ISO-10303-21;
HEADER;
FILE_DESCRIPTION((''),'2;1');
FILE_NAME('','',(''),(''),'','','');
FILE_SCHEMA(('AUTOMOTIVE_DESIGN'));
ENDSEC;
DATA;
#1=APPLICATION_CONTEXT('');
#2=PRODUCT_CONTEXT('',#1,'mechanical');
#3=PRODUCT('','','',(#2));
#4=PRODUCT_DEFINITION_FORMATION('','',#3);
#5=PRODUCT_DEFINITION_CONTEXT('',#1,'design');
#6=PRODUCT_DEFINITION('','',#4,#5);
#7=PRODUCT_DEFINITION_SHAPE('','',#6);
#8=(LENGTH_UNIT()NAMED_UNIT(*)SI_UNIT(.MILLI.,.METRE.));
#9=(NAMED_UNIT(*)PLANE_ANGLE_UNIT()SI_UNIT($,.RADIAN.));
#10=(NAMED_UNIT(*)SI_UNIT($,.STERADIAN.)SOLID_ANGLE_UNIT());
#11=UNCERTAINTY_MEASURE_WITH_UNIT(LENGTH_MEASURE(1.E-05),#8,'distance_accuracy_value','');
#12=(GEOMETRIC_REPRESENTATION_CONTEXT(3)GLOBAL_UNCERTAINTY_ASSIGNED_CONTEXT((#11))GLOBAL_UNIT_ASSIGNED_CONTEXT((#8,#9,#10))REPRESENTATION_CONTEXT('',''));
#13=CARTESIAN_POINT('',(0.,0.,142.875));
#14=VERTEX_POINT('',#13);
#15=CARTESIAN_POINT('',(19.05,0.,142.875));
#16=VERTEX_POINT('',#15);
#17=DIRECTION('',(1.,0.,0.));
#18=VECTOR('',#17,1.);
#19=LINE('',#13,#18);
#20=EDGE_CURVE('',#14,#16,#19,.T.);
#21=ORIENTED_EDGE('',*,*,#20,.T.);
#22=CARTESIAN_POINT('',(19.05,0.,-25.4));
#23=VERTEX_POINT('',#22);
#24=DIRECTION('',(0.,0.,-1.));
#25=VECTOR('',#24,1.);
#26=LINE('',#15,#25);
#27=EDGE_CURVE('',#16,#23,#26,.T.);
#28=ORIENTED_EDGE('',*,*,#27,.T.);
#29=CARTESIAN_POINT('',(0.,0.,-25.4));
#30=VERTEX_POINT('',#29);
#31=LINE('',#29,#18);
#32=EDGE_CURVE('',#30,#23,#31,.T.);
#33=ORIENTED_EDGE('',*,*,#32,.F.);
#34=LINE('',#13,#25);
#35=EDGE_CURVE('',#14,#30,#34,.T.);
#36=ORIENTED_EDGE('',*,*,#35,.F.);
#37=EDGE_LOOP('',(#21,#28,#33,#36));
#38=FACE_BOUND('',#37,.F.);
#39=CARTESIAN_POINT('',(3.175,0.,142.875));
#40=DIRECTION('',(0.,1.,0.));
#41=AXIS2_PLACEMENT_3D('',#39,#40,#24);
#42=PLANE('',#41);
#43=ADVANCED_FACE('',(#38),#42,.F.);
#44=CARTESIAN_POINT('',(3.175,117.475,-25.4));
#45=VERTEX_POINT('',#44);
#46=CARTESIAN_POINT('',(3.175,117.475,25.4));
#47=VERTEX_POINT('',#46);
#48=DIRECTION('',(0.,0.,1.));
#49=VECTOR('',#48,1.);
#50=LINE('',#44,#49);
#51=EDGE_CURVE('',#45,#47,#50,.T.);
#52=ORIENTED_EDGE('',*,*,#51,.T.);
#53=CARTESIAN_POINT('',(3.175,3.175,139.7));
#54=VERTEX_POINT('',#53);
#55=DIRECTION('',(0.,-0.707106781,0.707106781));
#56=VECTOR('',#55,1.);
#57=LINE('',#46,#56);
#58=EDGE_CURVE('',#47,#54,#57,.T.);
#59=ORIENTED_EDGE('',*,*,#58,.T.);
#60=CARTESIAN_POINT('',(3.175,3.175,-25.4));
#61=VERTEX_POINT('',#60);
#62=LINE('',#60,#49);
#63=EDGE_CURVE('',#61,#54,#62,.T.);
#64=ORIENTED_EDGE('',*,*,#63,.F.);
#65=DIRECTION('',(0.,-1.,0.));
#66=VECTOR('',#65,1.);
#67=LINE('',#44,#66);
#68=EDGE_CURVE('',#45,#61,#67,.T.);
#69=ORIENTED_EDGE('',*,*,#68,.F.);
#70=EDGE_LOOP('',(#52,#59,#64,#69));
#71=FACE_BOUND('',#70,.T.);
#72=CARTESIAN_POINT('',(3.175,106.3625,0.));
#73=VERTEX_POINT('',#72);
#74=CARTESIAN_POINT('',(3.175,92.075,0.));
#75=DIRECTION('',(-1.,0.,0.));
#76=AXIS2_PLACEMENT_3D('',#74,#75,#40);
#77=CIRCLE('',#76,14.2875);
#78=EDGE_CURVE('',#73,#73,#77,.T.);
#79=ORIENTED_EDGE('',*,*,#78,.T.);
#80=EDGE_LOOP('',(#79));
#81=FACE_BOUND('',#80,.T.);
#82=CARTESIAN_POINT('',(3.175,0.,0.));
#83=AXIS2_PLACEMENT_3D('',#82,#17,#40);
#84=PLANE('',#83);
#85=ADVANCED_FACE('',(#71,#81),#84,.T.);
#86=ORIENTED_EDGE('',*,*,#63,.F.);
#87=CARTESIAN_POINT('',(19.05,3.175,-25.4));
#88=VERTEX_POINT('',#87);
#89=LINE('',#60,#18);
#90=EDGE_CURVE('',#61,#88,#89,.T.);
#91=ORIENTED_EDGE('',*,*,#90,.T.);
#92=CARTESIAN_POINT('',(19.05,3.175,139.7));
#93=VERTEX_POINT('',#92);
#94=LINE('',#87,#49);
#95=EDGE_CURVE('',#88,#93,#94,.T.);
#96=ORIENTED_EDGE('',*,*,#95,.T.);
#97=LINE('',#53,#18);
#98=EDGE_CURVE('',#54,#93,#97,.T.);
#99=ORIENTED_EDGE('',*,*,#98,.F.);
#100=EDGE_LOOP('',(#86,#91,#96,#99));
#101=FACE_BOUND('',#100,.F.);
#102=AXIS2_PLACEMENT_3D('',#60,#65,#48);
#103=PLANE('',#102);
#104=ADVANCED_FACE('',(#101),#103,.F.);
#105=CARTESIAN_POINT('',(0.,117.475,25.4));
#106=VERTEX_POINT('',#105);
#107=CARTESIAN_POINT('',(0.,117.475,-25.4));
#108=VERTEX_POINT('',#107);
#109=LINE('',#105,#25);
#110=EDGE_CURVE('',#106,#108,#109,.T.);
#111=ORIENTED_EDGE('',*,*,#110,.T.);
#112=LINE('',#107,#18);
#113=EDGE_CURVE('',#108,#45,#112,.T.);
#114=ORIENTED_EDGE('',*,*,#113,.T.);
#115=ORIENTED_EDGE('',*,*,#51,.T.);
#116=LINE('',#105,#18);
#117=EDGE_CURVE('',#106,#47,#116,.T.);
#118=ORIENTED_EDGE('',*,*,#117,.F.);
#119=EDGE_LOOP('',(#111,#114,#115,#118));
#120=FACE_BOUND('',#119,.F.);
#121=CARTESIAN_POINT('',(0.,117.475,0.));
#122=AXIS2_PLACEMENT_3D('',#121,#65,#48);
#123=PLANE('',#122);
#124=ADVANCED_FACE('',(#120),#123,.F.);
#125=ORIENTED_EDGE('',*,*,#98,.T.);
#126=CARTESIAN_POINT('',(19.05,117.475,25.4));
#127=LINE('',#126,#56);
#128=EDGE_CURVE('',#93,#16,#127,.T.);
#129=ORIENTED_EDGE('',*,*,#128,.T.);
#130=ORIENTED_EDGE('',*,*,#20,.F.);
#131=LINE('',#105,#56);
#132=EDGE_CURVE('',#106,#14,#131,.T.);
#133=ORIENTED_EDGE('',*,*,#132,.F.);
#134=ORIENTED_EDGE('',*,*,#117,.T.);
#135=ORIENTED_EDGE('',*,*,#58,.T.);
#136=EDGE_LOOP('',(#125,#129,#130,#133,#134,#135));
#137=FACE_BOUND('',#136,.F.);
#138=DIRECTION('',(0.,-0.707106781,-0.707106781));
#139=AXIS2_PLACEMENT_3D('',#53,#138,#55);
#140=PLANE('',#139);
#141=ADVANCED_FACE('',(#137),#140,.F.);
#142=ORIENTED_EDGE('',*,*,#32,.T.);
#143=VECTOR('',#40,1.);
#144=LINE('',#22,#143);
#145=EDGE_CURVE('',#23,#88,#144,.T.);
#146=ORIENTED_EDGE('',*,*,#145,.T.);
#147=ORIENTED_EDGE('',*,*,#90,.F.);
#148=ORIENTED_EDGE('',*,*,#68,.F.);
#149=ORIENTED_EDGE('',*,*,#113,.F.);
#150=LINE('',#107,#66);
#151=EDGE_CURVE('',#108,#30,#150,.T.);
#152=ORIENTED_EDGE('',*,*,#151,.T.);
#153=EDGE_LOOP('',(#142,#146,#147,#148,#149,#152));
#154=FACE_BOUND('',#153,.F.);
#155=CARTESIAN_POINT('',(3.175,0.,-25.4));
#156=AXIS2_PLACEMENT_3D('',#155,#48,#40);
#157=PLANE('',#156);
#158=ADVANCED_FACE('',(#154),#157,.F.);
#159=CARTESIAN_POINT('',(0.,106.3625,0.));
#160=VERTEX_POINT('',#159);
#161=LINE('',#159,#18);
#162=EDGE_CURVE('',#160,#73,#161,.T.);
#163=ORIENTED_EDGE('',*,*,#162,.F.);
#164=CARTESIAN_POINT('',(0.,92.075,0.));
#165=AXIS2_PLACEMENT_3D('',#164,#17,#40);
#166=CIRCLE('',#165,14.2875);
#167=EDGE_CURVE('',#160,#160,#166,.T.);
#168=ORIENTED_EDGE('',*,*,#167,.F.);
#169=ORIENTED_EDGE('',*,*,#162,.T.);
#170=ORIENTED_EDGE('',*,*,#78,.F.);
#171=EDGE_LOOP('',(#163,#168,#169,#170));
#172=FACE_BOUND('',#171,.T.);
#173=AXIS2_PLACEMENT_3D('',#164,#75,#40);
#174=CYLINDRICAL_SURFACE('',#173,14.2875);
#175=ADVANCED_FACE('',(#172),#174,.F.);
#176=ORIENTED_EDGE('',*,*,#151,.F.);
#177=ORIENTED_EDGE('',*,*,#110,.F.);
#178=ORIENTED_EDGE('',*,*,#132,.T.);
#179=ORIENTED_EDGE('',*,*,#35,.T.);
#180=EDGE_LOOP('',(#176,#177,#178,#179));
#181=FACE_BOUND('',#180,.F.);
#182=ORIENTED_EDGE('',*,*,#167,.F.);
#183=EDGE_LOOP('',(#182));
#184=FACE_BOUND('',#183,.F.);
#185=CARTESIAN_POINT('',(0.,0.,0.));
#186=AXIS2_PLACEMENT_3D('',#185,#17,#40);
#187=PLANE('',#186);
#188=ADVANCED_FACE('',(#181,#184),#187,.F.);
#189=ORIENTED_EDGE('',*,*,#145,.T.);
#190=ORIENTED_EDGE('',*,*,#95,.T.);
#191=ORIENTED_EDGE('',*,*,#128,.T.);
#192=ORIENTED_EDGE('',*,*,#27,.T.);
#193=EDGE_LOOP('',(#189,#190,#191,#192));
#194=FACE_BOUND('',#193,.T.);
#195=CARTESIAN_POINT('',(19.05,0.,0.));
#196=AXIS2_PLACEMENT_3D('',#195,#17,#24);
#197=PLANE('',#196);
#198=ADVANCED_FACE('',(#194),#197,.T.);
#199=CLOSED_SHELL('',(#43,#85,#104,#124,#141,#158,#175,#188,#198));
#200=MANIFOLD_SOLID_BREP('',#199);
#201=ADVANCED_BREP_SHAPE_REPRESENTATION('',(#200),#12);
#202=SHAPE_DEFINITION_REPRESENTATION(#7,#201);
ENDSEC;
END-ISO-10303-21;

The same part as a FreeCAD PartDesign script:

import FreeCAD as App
import Part
import Sketcher

V = App.Vector
Q = App.Units.Quantity


def add_polygon(sketch, points):
    """Adds a closed chain of lines whose ends are joined by coincident constraints."""
    first, n = sketch.GeometryCount, len(points)
    for a, b in zip(points, points[1:] + points[:1]):
        sketch.addGeometry(Part.LineSegment(App.Vector(*a, 0), App.Vector(*b, 0)), False)
    for i in range(n):
        sketch.addConstraint(Sketcher.Constraint("Coincident", first + i, 2, first + (i + 1) % n, 1))

doc = App.newDocument("Part")
params = doc.addObject("Spreadsheet::Sheet", "Params")
for row, (alias, value) in enumerate([
    ("sketch1_diameter", "1.125 in"),
    ("pad1_length", "0.125 in"),
    ("sketch2_width", "0.125 in"),
    ("sketch2_height", "6.5 in"),
    ("pad2_length", "0.625 in"),
], start=1):
    params.set(f"A{row}", alias)
    params.set(f"B{row}", "=" + value)
    params.setAlias(f"B{row}", alias)

body = doc.addObject("PartDesign::Body", "Body")

sketch1 = doc.addObject("Sketcher::SketchObject", "Sketch")
body.addObject(sketch1)
sketch1.AttachmentSupport = (doc.YZ_Plane, [""])
sketch1.MapMode = "FlatFace"
add_polygon(sketch1, [(0, 143), (0, -25), (117, -25), (117, 25)])
sketch1.addGeometry(Part.Circle(V(92, 0, 0), V(0, 0, 1), 14), False)
sketch1.addConstraint([
    Sketcher.Constraint("Vertical", 0),
    Sketcher.Constraint("Horizontal", 1),
    Sketcher.Constraint("Vertical", 2),
    Sketcher.Constraint("PointOnObject", 4, 3, -1),
    Sketcher.Constraint("PointOnObject", 0, 2, -2),
    Sketcher.Constraint("Diameter", 4, Q("1.125 in")),
    Sketcher.Constraint("DistanceY", 0, 2, -1, 1, Q("1 in")),
    Sketcher.Constraint("DistanceY", -1, 1, 2, 2, Q("1 in")),
    Sketcher.Constraint("Angle", 3, Q("135 deg")),
    Sketcher.Constraint("DistanceX", 4, 3, 1, 2, Q("1 in")),
    Sketcher.Constraint("DistanceX", -1, 1, 4, 3, Q("3.625 in")),
])
sketch1.setExpression("Constraints[9]", "Params.sketch1_diameter")
pad1 = doc.addObject("PartDesign::Pad", "Pad")
body.addObject(pad1)
pad1.Profile = sketch1
pad1.setExpression("Length", "Params.pad1_length")

sketch2 = doc.addObject("Sketcher::SketchObject", "Sketch001")
body.addObject(sketch2)
sketch2.AttachmentSupport = (doc.YZ_Plane, [""])
sketch2.MapMode = "FlatFace"
sketch2.AttachmentOffset = App.Placement(V(0, 0, 0.125 * 25.4), App.Rotation())
add_polygon(sketch2, [(3.2, 139.7), (0, 142.9), (0, -25.4), (3.2, -25.4)])
sketch2.addConstraint([
    Sketcher.Constraint("Vertical", 1),
    Sketcher.Constraint("Horizontal", 2),
    Sketcher.Constraint("Vertical", 3),
    Sketcher.Constraint("PointOnObject", 0, 2, -2),
    Sketcher.Constraint("DistanceX", 2, 1, 2, 2, Q("0.125 in")),
    Sketcher.Constraint("DistanceY", 3, 1, 3, 2, Q("6.5 in")),
    Sketcher.Constraint("DistanceY", 1, 2, -1, 1, Q("1 in")),
    Sketcher.Constraint("Angle", 0, Q("135 deg")),
])
sketch2.setExpression("Constraints[8]", "Params.sketch2_width")
sketch2.setExpression("Constraints[9]", "Params.sketch2_height")
pad2 = doc.addObject("PartDesign::Pad", "Pad001")
body.addObject(pad2)
pad2.Profile = sketch2
pad2.setExpression("Length", "Params.pad2_length")

doc.recompute()
